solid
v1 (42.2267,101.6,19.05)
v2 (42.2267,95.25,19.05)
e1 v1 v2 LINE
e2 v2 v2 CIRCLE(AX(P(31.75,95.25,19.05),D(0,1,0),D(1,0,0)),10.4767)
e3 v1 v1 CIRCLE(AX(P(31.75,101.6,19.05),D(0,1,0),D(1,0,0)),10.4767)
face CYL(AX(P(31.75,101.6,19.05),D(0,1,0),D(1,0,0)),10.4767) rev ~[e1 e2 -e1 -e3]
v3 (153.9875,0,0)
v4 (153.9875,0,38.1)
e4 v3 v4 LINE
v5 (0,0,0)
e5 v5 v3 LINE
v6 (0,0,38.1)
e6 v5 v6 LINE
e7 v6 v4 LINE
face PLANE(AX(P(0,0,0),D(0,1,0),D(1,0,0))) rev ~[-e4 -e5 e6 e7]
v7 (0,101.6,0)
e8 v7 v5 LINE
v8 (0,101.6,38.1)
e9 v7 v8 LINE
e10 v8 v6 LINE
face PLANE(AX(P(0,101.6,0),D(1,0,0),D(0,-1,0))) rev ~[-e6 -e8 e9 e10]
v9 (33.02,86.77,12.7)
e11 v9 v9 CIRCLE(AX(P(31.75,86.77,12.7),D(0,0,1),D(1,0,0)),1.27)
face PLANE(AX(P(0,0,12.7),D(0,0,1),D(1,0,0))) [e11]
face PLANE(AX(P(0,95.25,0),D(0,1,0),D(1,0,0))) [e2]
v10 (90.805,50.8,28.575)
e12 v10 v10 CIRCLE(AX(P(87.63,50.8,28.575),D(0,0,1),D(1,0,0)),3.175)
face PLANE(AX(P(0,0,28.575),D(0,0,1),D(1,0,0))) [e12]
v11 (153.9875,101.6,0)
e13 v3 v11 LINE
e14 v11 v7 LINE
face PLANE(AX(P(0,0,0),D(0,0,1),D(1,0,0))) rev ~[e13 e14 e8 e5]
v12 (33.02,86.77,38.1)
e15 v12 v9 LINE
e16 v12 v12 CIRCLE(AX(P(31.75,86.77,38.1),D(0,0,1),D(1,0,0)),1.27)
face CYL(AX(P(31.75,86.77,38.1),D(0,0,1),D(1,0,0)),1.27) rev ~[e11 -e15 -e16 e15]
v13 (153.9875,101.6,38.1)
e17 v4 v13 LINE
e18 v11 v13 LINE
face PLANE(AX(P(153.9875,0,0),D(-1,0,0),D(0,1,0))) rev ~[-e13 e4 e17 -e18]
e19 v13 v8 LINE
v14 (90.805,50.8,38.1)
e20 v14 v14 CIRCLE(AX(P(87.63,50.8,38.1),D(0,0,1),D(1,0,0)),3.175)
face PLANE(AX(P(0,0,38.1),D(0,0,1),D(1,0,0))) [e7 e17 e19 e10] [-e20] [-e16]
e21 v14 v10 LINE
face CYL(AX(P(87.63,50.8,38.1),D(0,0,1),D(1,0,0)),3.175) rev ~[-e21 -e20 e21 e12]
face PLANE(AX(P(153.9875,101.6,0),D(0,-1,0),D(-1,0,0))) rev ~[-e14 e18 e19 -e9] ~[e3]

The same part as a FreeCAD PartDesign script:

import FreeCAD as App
import Part
import Sketcher
Q = App.Units.Quantity

doc = App.newDocument("Part")
params = doc.addObject("Spreadsheet::Sheet", "Params")
for row, (alias, value) in enumerate([
    ("sketch1_height", "4 in"),
    ("sketch1_width", "6.0625 in"),
    ("pad1_length", "1.5 in"),
    ("pocket1_length", "0.25 in"),
    ("sketch3_diameter", "0.25 in"),
    ("pocket2_length", "0.375 in"),
    ("sketch4_diameter", "0.1 in"),
    ("pocket3_length", "1 in"),
], start=1):
    params.set(f"A{row}", alias)
    params.set(f"B{row}", "=" + value)
    params.setAlias(f"B{row}", alias)

body = doc.addObject("PartDesign::Body", "Body")

sketch1 = body.newObject("Sketcher::SketchObject", "Sketch")
sketch1.AttachmentSupport = (doc.getObject("XY_Plane"), [""])
sketch1.MapMode = "FlatFace"
sketch1.addGeometry(Part.LineSegment(App.Vector(0, 102, 0), App.Vector(0, 0, 0)), False)
sketch1.addGeometry(Part.LineSegment(App.Vector(0, 0, 0), App.Vector(154, 0, 0)), False)
sketch1.addGeometry(Part.LineSegment(App.Vector(154, 0, 0), App.Vector(154, 102, 0)), False)
sketch1.addGeometry(Part.LineSegment(App.Vector(154, 102, 0), App.Vector(0, 102, 0)), False)
sketch1.addConstraint(Sketcher.Constraint("Coincident", 0, 2, 1, 1))
sketch1.addConstraint(Sketcher.Constraint("Coincident", 1, 2, 2, 1))
sketch1.addConstraint(Sketcher.Constraint("Coincident", 2, 2, 3, 1))
sketch1.addConstraint(Sketcher.Constraint("Coincident", 3, 2, 0, 1))
sketch1.addConstraint(Sketcher.Constraint("Vertical", 0))
sketch1.addConstraint(Sketcher.Constraint("Horizontal", 1))
sketch1.addConstraint(Sketcher.Constraint("Vertical", 2))
sketch1.addConstraint(Sketcher.Constraint("Horizontal", 3))
sketch1.addConstraint(Sketcher.Constraint("Coincident", 0, 2, -1, 1))
sketch1.addConstraint(Sketcher.Constraint("DistanceY", 0, 2, 0, 1, Q("4 in")))
sketch1.addConstraint(Sketcher.Constraint("DistanceX", 1, 1, 1, 2, Q("6.0625 in")))
sketch1.setExpression("Constraints[9]", "Params.sketch1_height")
sketch1.setExpression("Constraints[10]", "Params.sketch1_width")
pad1 = body.newObject("PartDesign::Pad", "Pad")
pad1.Profile = sketch1
pad1.setExpression("Length", "Params.pad1_length")

sketch2 = body.newObject("Sketcher::SketchObject", "Sketch001")
sketch2.AttachmentSupport = (doc.getObject("XZ_Plane"), [""])
sketch2.MapMode = "FlatFace"
sketch2.AttachmentOffset = App.Placement(App.Vector(0, 0, -4 * 25.4), App.Rotation())
sketch2.addGeometry(Part.Circle(App.Vector(32, 19, 0), App.Vector(0, 0, 1), 10), False)
sketch2.addConstraint(Sketcher.Constraint("DistanceX", -1, 1, 0, 3, Q("1.25 in")))
sketch2.addConstraint(Sketcher.Constraint("DistanceY", -1, 1, 0, 3, Q("0.75 in")))
sketch2.addConstraint(Sketcher.Constraint("Diameter", 0, 20.9534))
pocket1 = body.newObject("PartDesign::Pocket", "Pocket")
pocket1.Profile = sketch2
pocket1.setExpression("Length", "Params.pocket1_length")
pocket1.Reversed = True

sketch3 = body.newObject("Sketcher::SketchObject", "Sketch002")
sketch3.AttachmentSupport = (doc.getObject("XY_Plane"), [""])
sketch3.MapMode = "FlatFace"
sketch3.AttachmentOffset = App.Placement(App.Vector(0, 0, 1.5 * 25.4), App.Rotation())
sketch3.addGeometry(Part.Circle(App.Vector(87.6, 50.8, 0), App.Vector(0, 0, 1), 3.2), False)
sketch3.addConstraint(Sketcher.Constraint("Diameter", 0, Q("0.25 in")))
sketch3.addConstraint(Sketcher.Constraint("DistanceY", -1, 1, 0, 3, Q("2 in")))
sketch3.addConstraint(Sketcher.Constraint("DistanceX", -1, 1, 0, 3, Q("3.45 in")))
sketch3.setExpression("Constraints[0]", "Params.sketch3_diameter")
pocket2 = body.newObject("PartDesign::Pocket", "Pocket001")
pocket2.Profile = sketch3
pocket2.setExpression("Length", "Params.pocket2_length")

sketch4 = body.newObject("Sketcher::SketchObject", "Sketch003")
sketch4.AttachmentSupport = (doc.getObject("XY_Plane"), [""])
sketch4.MapMode = "FlatFace"
sketch4.AttachmentOffset = App.Placement(App.Vector(0, 0, 1.5 * 25.4), App.Rotation())
sketch4.addGeometry(Part.Circle(App.Vector(31.8, 86.8, 0), App.Vector(0, 0, 1), 1.3), False)
sketch4.addConstraint(Sketcher.Constraint("Diameter", 0, Q("0.1 in")))
sketch4.addConstraint(Sketcher.Constraint("DistanceX", -1, 1, 0, 3, Q("1.25 in")))
sketch4.addConstraint(Sketcher.Constraint("DistanceY", -1, 1, 0, 3, 86.77))
sketch4.setExpression("Constraints[0]", "Params.sketch4_diameter")
pocket3 = body.newObject("PartDesign::Pocket", "Pocket002")
pocket3.Profile = sketch4
pocket3.setExpression("Length", "Params.pocket3_length")

doc.recompute()
